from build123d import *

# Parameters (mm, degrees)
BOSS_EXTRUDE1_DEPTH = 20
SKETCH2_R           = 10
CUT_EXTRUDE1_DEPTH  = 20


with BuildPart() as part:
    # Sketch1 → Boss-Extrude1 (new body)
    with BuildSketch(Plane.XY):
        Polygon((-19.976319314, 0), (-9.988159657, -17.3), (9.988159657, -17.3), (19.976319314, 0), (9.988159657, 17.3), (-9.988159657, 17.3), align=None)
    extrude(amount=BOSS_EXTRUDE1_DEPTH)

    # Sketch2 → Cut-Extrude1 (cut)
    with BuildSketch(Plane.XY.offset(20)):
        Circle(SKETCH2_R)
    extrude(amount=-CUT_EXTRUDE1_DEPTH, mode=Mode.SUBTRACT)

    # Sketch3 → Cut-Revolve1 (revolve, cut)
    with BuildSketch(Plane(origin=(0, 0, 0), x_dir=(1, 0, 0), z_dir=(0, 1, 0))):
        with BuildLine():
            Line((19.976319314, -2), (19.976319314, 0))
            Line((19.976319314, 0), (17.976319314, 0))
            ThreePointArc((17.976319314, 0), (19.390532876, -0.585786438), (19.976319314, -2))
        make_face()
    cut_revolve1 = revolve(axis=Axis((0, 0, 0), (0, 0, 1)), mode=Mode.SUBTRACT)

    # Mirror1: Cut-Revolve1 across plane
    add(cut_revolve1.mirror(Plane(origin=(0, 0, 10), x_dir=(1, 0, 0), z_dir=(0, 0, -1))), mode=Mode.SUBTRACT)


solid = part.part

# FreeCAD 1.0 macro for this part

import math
import FreeCAD as App
import Part
import Sketcher
from FreeCAD import Vector
Q = App.Units.Quantity

doc = App.newDocument("Part")
body = doc.addObject("PartDesign::Body", "Body")

sketch1 = body.newObject("Sketcher::SketchObject", "Sketch")
sketch1.AttachmentSupport = (doc.getObject("XY_Plane"), [""])
sketch1.MapMode = "FlatFace"
sketch1.addGeometry(Part.LineSegment(Vector(-19.976319, 0, 0), Vector(-9.98816, -17.3, 0)), False)
sketch1.addGeometry(Part.LineSegment(Vector(-9.98816, -17.3, 0), Vector(9.98816, -17.3, 0)), False)
sketch1.addGeometry(Part.LineSegment(Vector(9.98816, -17.3, 0), Vector(19.976319, 0, 0)), False)
sketch1.addGeometry(Part.LineSegment(Vector(19.976319, 0, 0), Vector(9.98816, 17.3, 0)), False)
sketch1.addGeometry(Part.LineSegment(Vector(9.98816, 17.3, 0), Vector(-9.98816, 17.3, 0)), False)
sketch1.addGeometry(Part.LineSegment(Vector(-9.98816, 17.3, 0), Vector(-19.976319, 0, 0)), False)
sketch1.addConstraint(Sketcher.Constraint("Coincident", 0, 2, 1, 1))
sketch1.addConstraint(Sketcher.Constraint("Coincident", 1, 2, 2, 1))
sketch1.addConstraint(Sketcher.Constraint("Coincident", 2, 2, 3, 1))
sketch1.addConstraint(Sketcher.Constraint("Coincident", 3, 2, 4, 1))
sketch1.addConstraint(Sketcher.Constraint("Coincident", 4, 2, 5, 1))
sketch1.addConstraint(Sketcher.Constraint("Coincident", 5, 2, 0, 1))
sketch1.addConstraint(Sketcher.Constraint("Horizontal", 1))
sketch1.addConstraint(Sketcher.Constraint("Horizontal", 4))
sketch1.addConstraint(Sketcher.Constraint("Symmetric", 0, 2, 3, 2, -1, 1))
sketch1.addConstraint(Sketcher.Constraint("Symmetric", 2, 2, 5, 2, -1, 1))
sketch1.addConstraint(Sketcher.Constraint("PointOnObject", 2, 2, -1))
sketch1.addConstraint(Sketcher.Constraint("Parallel", 2, 5))
sketch1.addConstraint(Sketcher.Constraint("Vertical", 1, 2, 3, 2))
sketch1.addConstraint(Sketcher.Constraint("Angle", 0, Q("-60 deg")))
sketch1.addConstraint(Sketcher.Constraint("DistanceY", 0, 2, -1, 1, 17.3))
sketch1.addConstraint(Sketcher.Constraint("DistanceX", 1, 1, 1, 2, 19.976319))
pad1 = body.newObject("PartDesign::Pad", "Pad")
pad1.Profile = sketch1
pad1.Length = 20

sketch2 = body.newObject("Sketcher::SketchObject", "Sketch001")
sketch2.AttachmentSupport = (doc.getObject("XY_Plane"), [""])
sketch2.MapMode = "FlatFace"
sketch2.AttachmentOffset = App.Placement(Vector(0, 0, 20), App.Rotation())
sketch2.addGeometry(Part.Circle(Vector(0, 0, 0), Vector(0, 0, 1), 10), False)
sketch2.addConstraint(Sketcher.Constraint("Coincident", 0, 3, -1, 1))
sketch2.addConstraint(Sketcher.Constraint("Diameter", 0, 20.0))
pocket1 = body.newObject("PartDesign::Pocket", "Pocket")
pocket1.Profile = sketch2
pocket1.Length = 20

sketch3 = body.newObject("Sketcher::SketchObject", "Sketch002")
sketch3.AttachmentSupport = (doc.getObject("XZ_Plane"), [""])
sketch3.MapMode = "FlatFace"
sketch3.addGeometry(Part.LineSegment(Vector(19.976319, 2, 0), Vector(19.976319, 0, 0)), False)
sketch3.addGeometry(Part.LineSegment(Vector(19.976319, 0, 0), Vector(17.976319, 0, 0)), False)
sketch3.addGeometry(Part.ArcOfCircle(Part.Circle(Vector(17.976319, 2, 0), Vector(0, 0, 1), 2), math.radians(-90), math.radians(0)), False)
sketch3.addConstraint(Sketcher.Constraint("Coincident", 0, 2, 1, 1))
sketch3.addConstraint(Sketcher.Constraint("Tangent", 1, 2, 2, 1))
sketch3.addConstraint(Sketcher.Constraint("Tangent", 2, 2, 0, 1))
sketch3.addConstraint(Sketcher.Constraint("Vertical", 0))
sketch3.addConstraint(Sketcher.Constraint("Horizontal", 1))
sketch3.addConstraint(Sketcher.Constraint("PointOnObject", 0, 2, -1))
sketch3.addConstraint(Sketcher.Constraint("Radius", 2, 2.0))
sketch3.addConstraint(Sketcher.Constraint("DistanceX", -1, 1, 2, 3, 17.976319))
groove = body.newObject("PartDesign::Groove", "Groove")
groove.Profile = sketch3
groove.ReferenceAxis = (sketch3, ["V_Axis"])
groove.Angle = 360
doc.recompute()

datumplane = body.newObject("PartDesign::Plane", "DatumPlane")
datumplane.AttachmentSupport = (doc.getObject("XY_Plane"), [""])
datumplane.MapMode = "FlatFace"
datumplane.AttachmentOffset = App.Placement(Vector(0, 0, 10), App.Rotation())
mirrored = body.newObject("PartDesign::Mirrored", "Mirrored")
mirrored.Originals = [groove]
mirrored.MirrorPlane = (datumplane, [""])
body.Tip = mirrored

doc.recompute()
